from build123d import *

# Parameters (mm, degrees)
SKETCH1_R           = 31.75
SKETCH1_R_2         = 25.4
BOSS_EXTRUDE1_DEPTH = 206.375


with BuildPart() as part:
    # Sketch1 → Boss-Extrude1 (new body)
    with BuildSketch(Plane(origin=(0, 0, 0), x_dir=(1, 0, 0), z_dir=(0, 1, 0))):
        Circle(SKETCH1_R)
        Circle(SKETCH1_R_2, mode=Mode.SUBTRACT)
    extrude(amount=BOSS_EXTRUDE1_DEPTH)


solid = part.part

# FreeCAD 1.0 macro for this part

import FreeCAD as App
import Part
import Sketcher
from FreeCAD import Vector
Q = App.Units.Quantity

doc = App.newDocument("Part")
params = doc.addObject("Spreadsheet::Sheet", "Params")
for row, (alias, value) in enumerate([
    ("sketch1_diameter", "2 in"),
    ("sketch1_diameter2", "2.5 in"),
    ("pad1_length", "8.125 in"),
], start=1):
    params.set(f"A{row}", alias)
    params.set(f"B{row}", "=" + value)
    params.setAlias(f"B{row}", alias)

body = doc.addObject("PartDesign::Body", "Body")

# Sketch on XZ plane
sketch1 = doc.addObject("Sketcher::SketchObject", "Sketch")
body.addObject(sketch1)
sketch1.AttachmentSupport = (doc.XZ_Plane, [""])
sketch1.MapMode = "FlatFace"
sketch1.addGeometry(Part.Circle(Vector(0, 0, 0), Vector(0, 0, 1), 31.75), False)
sketch1.addGeometry(Part.Circle(Vector(0, 0, 0), Vector(0, 0, 1), 25.4), False)
sketch1.addConstraint(Sketcher.Constraint("Coincident", 0, 3, -1, 1))
sketch1.addConstraint(Sketcher.Constraint("Coincident", 1, 3, -1, 1))
sketch1.addConstraint(Sketcher.Constraint("Diameter", 1, Q("2 in")))
sketch1.addConstraint(Sketcher.Constraint("Diameter", 0, Q("2.5 in")))
sketch1.setExpression("Constraints[2]", "Params.sketch1_diameter")
sketch1.setExpression("Constraints[3]", "Params.sketch1_diameter2")
pad1 = doc.addObject("PartDesign::Pad", "Pad")
body.addObject(pad1)
pad1.Profile = sketch1
pad1.setExpression("Length", "Params.pad1_length")
pad1.Reversed = True

doc.recompute()
